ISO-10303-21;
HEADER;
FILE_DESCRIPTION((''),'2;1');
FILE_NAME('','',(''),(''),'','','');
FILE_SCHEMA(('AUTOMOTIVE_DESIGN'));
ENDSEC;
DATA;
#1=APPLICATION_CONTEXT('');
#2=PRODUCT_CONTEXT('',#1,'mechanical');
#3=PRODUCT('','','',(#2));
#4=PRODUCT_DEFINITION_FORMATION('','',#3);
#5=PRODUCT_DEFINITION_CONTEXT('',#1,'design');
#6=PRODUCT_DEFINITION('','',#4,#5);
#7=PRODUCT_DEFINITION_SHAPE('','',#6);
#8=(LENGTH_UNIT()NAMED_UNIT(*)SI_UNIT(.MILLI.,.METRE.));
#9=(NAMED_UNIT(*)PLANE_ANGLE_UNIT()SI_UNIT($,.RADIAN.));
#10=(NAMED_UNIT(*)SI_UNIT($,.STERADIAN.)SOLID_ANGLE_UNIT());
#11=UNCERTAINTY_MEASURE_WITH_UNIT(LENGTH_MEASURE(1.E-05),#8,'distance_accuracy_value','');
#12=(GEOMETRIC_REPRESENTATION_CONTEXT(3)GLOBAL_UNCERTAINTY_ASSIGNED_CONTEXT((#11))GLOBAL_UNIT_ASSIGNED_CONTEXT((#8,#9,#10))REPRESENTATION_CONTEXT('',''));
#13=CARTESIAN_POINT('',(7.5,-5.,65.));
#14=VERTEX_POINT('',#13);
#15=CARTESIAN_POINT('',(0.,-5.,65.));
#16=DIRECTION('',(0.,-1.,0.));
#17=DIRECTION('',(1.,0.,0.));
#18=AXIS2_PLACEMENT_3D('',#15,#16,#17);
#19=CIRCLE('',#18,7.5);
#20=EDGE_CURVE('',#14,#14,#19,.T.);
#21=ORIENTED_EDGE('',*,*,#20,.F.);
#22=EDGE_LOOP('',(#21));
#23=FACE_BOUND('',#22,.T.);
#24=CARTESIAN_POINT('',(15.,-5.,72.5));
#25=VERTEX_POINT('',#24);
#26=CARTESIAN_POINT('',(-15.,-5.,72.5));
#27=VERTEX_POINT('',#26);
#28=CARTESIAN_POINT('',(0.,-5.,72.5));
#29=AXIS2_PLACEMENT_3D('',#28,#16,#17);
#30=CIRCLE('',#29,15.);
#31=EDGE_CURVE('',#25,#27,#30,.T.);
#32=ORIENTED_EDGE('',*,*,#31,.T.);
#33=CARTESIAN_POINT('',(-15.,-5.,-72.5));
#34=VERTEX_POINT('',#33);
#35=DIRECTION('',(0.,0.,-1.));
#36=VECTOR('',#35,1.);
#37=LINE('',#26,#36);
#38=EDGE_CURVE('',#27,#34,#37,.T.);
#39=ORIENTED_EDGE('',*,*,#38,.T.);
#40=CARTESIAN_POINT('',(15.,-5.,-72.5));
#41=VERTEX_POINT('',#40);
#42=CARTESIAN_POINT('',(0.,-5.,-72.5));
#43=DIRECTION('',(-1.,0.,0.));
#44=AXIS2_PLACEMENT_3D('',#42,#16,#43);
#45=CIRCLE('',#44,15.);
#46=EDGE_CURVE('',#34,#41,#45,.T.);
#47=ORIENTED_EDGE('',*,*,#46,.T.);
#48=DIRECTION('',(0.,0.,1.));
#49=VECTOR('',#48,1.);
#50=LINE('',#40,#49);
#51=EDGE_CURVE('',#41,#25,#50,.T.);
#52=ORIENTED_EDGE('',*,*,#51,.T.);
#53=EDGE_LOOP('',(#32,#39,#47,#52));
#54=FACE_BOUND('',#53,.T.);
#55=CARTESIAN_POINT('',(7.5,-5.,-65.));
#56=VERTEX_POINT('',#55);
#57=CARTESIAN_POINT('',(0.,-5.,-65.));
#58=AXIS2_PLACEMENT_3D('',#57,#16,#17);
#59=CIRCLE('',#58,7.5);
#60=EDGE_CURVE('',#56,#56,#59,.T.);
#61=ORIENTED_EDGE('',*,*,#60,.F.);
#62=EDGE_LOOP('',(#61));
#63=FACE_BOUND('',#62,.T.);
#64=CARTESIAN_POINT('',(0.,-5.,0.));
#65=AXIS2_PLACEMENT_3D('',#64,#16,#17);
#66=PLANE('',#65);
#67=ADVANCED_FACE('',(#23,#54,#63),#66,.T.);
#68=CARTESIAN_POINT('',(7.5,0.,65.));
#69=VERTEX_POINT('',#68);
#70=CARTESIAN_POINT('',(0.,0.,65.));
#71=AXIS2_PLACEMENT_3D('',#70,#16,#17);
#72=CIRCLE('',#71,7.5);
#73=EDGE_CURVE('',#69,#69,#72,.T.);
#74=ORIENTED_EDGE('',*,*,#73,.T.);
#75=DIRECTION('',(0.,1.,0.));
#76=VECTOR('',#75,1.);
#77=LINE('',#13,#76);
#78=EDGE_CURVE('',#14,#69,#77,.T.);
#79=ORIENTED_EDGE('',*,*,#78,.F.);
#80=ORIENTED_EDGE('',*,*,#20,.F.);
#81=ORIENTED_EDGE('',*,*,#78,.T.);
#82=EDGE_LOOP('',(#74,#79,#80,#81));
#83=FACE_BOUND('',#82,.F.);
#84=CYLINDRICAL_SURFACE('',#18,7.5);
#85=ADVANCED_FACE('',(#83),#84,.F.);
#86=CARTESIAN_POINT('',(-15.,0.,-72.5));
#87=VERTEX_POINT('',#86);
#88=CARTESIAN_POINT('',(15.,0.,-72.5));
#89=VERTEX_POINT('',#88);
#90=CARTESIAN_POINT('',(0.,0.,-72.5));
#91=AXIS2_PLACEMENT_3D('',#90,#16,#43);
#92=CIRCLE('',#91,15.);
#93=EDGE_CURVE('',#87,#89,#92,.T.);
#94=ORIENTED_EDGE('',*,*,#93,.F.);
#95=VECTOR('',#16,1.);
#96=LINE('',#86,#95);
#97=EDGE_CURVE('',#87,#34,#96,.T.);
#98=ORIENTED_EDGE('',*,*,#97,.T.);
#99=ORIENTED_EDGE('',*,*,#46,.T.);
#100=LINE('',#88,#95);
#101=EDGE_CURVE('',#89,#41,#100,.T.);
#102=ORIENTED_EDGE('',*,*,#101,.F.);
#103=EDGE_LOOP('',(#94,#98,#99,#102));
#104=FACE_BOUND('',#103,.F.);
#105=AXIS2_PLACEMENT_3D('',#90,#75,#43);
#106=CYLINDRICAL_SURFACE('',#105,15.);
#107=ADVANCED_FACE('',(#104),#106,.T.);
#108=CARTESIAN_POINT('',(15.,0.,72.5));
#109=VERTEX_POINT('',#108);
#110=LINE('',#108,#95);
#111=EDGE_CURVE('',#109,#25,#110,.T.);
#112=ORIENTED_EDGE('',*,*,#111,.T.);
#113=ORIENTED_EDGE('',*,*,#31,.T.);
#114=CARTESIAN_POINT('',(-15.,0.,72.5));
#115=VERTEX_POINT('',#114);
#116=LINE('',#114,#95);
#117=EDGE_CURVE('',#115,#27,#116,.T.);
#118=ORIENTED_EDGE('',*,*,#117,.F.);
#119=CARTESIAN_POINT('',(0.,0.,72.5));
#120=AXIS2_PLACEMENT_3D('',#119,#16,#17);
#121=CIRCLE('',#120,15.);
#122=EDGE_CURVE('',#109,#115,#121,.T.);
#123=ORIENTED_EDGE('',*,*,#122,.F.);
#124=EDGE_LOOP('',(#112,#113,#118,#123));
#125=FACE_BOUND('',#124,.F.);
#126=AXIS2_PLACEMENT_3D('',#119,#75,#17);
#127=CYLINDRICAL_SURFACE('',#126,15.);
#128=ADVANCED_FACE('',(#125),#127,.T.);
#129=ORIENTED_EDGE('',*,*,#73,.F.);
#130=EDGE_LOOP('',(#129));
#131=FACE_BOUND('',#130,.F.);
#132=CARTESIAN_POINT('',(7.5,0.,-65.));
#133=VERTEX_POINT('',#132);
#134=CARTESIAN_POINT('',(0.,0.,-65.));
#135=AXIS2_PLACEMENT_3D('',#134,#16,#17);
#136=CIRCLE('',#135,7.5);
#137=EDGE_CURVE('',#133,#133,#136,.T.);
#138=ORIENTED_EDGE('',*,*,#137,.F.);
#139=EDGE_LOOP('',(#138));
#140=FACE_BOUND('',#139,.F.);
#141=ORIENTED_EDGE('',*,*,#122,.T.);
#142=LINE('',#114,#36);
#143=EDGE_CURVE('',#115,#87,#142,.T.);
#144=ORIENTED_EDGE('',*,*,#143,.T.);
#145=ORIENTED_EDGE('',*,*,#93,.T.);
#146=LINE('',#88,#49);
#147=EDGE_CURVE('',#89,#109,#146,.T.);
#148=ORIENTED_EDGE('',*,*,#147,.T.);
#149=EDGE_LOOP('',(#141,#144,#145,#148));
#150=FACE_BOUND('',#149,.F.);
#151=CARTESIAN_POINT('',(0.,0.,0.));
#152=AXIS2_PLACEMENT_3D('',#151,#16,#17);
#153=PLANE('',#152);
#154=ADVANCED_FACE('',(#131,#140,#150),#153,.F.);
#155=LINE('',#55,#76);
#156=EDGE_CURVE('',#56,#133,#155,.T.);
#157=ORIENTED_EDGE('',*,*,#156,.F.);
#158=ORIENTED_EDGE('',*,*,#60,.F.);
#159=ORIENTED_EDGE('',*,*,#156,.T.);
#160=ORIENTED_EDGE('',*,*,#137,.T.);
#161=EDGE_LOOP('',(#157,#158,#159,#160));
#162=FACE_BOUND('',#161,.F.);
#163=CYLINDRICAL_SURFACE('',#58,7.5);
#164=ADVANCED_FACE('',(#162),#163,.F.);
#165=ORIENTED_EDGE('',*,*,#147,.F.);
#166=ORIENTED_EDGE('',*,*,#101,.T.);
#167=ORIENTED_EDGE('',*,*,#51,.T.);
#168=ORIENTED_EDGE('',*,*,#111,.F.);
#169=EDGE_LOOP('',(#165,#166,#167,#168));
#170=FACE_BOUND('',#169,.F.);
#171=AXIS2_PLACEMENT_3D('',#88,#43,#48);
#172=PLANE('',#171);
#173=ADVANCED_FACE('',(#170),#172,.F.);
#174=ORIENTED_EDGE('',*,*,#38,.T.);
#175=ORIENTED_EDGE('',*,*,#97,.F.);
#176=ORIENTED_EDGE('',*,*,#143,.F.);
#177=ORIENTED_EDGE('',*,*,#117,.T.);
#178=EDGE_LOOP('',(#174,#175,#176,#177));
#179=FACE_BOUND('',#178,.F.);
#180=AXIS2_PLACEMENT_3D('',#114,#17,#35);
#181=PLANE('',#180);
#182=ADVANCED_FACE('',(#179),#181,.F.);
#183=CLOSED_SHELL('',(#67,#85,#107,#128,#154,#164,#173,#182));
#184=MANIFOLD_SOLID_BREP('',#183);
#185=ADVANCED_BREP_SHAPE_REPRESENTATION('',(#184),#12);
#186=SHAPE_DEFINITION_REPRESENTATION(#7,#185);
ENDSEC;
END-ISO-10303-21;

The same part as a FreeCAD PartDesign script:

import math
import FreeCAD as App
import Part
import Sketcher
Q = App.Units.Quantity

doc = App.newDocument("Part")
body = doc.addObject("PartDesign::Body", "Body")

sketch1 = body.newObject("Sketcher::SketchObject", "Sketch")
sketch1.AttachmentSupport = (doc.getObject("XZ_Plane"), [""])
sketch1.MapMode = "FlatFace"
sketch1.addGeometry(Part.LineSegment(App.Vector(15, -72, 0), App.Vector(15, 72, 0)), False)
sketch1.addGeometry(Part.ArcOfCircle(Part.Circle(App.Vector(0, 72, 0), App.Vector(0, 0, 1), 15), math.radians(0), math.radians(180)), False)
sketch1.addGeometry(Part.LineSegment(App.Vector(-15, 72, 0), App.Vector(-15, -72, 0)), False)
sketch1.addGeometry(Part.ArcOfCircle(Part.Circle(App.Vector(0, -72, 0), App.Vector(0, 0, 1), 15), math.radians(180), math.radians(360)), False)
sketch1.addConstraint(Sketcher.Constraint("Tangent", 0, 2, 1, 1))
sketch1.addConstraint(Sketcher.Constraint("Tangent", 1, 2, 2, 1))
sketch1.addConstraint(Sketcher.Constraint("Tangent", 2, 2, 3, 1))
sketch1.addConstraint(Sketcher.Constraint("Tangent", 3, 2, 0, 1))
sketch1.addConstraint(Sketcher.Constraint("Vertical", 0))
sketch1.addConstraint(Sketcher.Constraint("Vertical", 2))
sketch1.addConstraint(Sketcher.Constraint("Symmetric", 1, 3, 3, 3, -1, 1))
sketch1.addConstraint(Sketcher.Constraint("Radius", 1, Q("15 mm")))
sketch1.addConstraint(Sketcher.Constraint("DistanceY", 0, 1, 0, 2, Q("145 mm")))
pad1 = body.newObject("PartDesign::Pad", "Pad")
pad1.Profile = sketch1
pad1.Length = 5

sketch2 = body.newObject("Sketcher::SketchObject", "Sketch001")
sketch2.AttachmentSupport = (doc.getObject("XZ_Plane"), [""])
sketch2.MapMode = "FlatFace"
sketch2.AttachmentOffset = App.Placement(App.Vector(0, 0, 5), App.Rotation())
sketch2.addGeometry(Part.Circle(App.Vector(0, 65, 0), App.Vector(0, 0, 1), 8), False)
sketch2.addGeometry(Part.Circle(App.Vector(0, -65, 0), App.Vector(0, 0, 1), 8), False)
sketch2.addConstraint(Sketcher.Constraint("Equal", 0, 1))
sketch2.addConstraint(Sketcher.Constraint("Symmetric", 0, 3, 1, 3, -1, 1))
sketch2.addConstraint(Sketcher.Constraint("PointOnObject", 0, 3, -2))
sketch2.addConstraint(Sketcher.Constraint("Diameter", 0, Q("15 mm")))
sketch2.addConstraint(Sketcher.Constraint("DistanceY", -1, 1, 0, 3, Q("65 mm")))
pocket1 = body.newObject("PartDesign::Pocket", "Pocket")
pocket1.Profile = sketch2
pocket1.Length = 25

doc.recompute()
